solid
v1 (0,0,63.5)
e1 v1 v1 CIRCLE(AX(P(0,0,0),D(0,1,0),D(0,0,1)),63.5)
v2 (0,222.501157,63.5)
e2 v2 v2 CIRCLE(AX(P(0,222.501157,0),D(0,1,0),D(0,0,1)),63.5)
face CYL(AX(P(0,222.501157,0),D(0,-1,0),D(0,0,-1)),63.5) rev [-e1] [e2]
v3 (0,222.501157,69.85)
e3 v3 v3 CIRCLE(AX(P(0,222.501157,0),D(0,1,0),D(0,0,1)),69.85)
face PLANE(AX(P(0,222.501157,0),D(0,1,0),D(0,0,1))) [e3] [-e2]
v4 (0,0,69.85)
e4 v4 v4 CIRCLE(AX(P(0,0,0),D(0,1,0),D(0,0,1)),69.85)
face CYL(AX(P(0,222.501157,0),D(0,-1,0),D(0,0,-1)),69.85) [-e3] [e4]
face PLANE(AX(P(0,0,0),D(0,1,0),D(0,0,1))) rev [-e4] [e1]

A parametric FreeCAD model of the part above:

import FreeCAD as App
import Part
import Sketcher
Q = App.Units.Quantity

doc = App.newDocument("Part")
body = doc.addObject("PartDesign::Body", "Body")

# Sketch on XZ plane
sketch1 = body.newObject("Sketcher::SketchObject", "Sketch")
sketch1.AttachmentSupport = (doc.getObject("XZ_Plane"), [""])
sketch1.MapMode = "FlatFace"
sketch1.addGeometry([
    Part.Circle(App.Vector(0, 0, 0), App.Vector(0, 0, 1), 70),
    Part.Circle(App.Vector(0, 0, 0), App.Vector(0, 0, 1), 64),
], False)
sketch1.addConstraint([
    Sketcher.Constraint("Coincident", 0, 3, -1, 1),
    Sketcher.Constraint("Coincident", 1, 3, -1, 1),
    Sketcher.Constraint("Diameter", 1, Q("5 in")),
    Sketcher.Constraint("Diameter", 0, Q("5.5 in")),
])
pad1 = body.newObject("PartDesign::Pad", "Pad")
pad1.Profile = sketch1
pad1.Length = 222.501157
pad1.Reversed = True

doc.recompute()
